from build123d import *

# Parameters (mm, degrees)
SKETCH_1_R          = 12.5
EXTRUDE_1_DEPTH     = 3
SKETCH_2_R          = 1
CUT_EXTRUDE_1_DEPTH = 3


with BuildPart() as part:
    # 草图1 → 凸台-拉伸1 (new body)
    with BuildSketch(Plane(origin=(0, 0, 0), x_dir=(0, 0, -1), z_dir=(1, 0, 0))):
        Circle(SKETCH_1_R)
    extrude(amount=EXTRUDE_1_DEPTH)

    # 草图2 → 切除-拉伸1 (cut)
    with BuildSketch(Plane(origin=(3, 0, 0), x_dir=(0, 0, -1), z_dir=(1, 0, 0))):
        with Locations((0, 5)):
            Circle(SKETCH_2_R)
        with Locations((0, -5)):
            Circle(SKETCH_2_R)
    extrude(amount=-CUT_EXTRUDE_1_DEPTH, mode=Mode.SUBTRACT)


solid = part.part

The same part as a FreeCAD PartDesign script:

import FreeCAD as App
import Part
import Sketcher
from FreeCAD import Vector

doc = App.newDocument("Part")
body = doc.addObject("PartDesign::Body", "Body")

sketch1 = doc.addObject("Sketcher::SketchObject", "Sketch")
body.addObject(sketch1)
sketch1.AttachmentSupport = (doc.YZ_Plane, [""])
sketch1.MapMode = "FlatFace"
sketch1.addGeometry(Part.Circle(Vector(0, 0, 0), Vector(0, 0, 1), 12), False)
sketch1.addConstraint([
    Sketcher.Constraint("Coincident", 0, 3, -1, 1),
    Sketcher.Constraint("Diameter", 0, 25.0),
])
pad1 = doc.addObject("PartDesign::Pad", "Pad")
body.addObject(pad1)
pad1.Profile = sketch1
pad1.Length = 3

sketch2 = doc.addObject("Sketcher::SketchObject", "Sketch001")
body.addObject(sketch2)
sketch2.AttachmentSupport = (doc.YZ_Plane, [""])
sketch2.MapMode = "FlatFace"
sketch2.AttachmentOffset = App.Placement(Vector(0, 0, 3), App.Rotation())
sketch2.addGeometry([
    Part.Circle(Vector(5, 0, 0), Vector(0, 0, 1), 1),
    Part.Circle(Vector(-5, 0, 0), Vector(0, 0, 1), 1),
], False)
sketch2.addConstraint([
    Sketcher.Constraint("Equal", 0, 1),
    Sketcher.Constraint("Symmetric", 0, 3, 1, 3, -1, 1),
    Sketcher.Constraint("PointOnObject", 0, 3, -1),
    Sketcher.Constraint("Diameter", 0, 2.0),
    Sketcher.Constraint("DistanceX", -1, 1, 0, 3, 5.0),
])
pocket1 = doc.addObject("PartDesign::Pocket", "Pocket")
body.addObject(pocket1)
pocket1.Profile = sketch2
pocket1.Length = 3

doc.recompute()
